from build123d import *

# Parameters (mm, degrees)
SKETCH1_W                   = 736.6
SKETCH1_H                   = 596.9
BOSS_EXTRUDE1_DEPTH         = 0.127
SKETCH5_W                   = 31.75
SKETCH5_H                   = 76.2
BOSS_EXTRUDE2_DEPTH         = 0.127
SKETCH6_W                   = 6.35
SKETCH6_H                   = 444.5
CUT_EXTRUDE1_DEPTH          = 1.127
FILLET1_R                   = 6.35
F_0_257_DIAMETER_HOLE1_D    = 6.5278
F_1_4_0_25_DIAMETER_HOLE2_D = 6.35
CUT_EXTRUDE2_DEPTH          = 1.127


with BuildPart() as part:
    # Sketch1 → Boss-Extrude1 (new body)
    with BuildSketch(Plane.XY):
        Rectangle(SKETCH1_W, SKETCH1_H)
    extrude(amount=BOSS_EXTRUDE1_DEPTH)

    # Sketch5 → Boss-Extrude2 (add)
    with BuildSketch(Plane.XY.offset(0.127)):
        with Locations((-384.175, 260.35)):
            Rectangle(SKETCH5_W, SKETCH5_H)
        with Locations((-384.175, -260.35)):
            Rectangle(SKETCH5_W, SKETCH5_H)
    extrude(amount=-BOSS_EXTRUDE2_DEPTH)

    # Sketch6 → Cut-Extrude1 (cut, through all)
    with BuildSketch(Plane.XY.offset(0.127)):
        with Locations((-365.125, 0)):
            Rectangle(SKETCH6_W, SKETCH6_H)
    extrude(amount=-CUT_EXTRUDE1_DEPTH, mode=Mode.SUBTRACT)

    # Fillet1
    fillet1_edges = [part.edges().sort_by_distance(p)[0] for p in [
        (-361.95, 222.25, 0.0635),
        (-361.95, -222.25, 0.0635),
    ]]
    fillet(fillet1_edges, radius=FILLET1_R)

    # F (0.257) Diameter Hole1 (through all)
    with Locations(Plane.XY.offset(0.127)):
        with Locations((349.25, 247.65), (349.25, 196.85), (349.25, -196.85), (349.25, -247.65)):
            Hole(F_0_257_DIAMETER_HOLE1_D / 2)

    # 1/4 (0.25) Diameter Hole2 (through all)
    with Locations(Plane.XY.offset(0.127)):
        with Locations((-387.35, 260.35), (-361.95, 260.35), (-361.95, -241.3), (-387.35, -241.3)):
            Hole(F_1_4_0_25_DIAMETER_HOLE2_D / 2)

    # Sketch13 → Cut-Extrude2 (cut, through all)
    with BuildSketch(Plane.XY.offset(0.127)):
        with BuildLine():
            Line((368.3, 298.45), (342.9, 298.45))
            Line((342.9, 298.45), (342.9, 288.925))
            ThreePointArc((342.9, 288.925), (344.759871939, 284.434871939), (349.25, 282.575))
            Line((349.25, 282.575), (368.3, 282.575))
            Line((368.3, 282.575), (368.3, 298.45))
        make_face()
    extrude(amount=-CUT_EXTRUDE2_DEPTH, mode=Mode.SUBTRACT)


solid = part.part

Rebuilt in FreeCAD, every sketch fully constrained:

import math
import FreeCAD as App
import Part
import Sketcher
from FreeCAD import Vector
Q = App.Units.Quantity


def edges_at(feature, points):
    """Names of the edges that pass closest to the given points."""
    edges = feature.Shape.Edges
    near = lambda p: min(range(len(edges)), key=lambda i: edges[i].distToShape(Part.Vertex(*p))[0])
    return sorted({f"Edge{near(p) + 1}" for p in points})

doc = App.newDocument("Part")
body = doc.addObject("PartDesign::Body", "Body")

# Sketch on XY plane
sketch1 = doc.addObject("Sketcher::SketchObject", "Sketch")
body.addObject(sketch1)
sketch1.AttachmentSupport = (doc.XY_Plane, [""])
sketch1.MapMode = "FlatFace"
sketch1.addGeometry([
    Part.LineSegment(Vector(-368, 298, 0), Vector(-368, -298, 0)),
    Part.LineSegment(Vector(-368, -298, 0), Vector(368, -298, 0)),
    Part.LineSegment(Vector(368, -298, 0), Vector(368, 298, 0)),
    Part.LineSegment(Vector(368, 298, 0), Vector(-368, 298, 0)),
], False)
sketch1.addConstraint([
    Sketcher.Constraint("Coincident", 0, 2, 1, 1),
    Sketcher.Constraint("Coincident", 1, 2, 2, 1),
    Sketcher.Constraint("Coincident", 2, 2, 3, 1),
    Sketcher.Constraint("Coincident", 3, 2, 0, 1),
    Sketcher.Constraint("Vertical", 0),
    Sketcher.Constraint("Horizontal", 1),
    Sketcher.Constraint("Vertical", 2),
    Sketcher.Constraint("Horizontal", 3),
    Sketcher.Constraint("Symmetric", 0, 2, 2, 2, -1, 1),
    Sketcher.Constraint("DistanceX", 1, 1, 1, 2, Q("29 in")),
    Sketcher.Constraint("DistanceY", 0, 2, 0, 1, Q("23.5 in")),
])
pad1 = doc.addObject("PartDesign::Pad", "Pad")
body.addObject(pad1)
pad1.Profile = sketch1
pad1.Length = Q("0.005 in")

# Sketch on XY plane
sketch2 = doc.addObject("Sketcher::SketchObject", "Sketch001")
body.addObject(sketch2)
sketch2.AttachmentSupport = (doc.XY_Plane, [""])
sketch2.MapMode = "FlatFace"
sketch2.AttachmentOffset = App.Placement(Vector(0, 0, 0.005 * 25.4), App.Rotation())
sketch2.addGeometry([
    Part.LineSegment(Vector(-400, 298, 0), Vector(-400, 222, 0)),  # 0
    Part.LineSegment(Vector(-400, 222, 0), Vector(-368, 222, 0)),  # 1
    Part.LineSegment(Vector(-368, 222, 0), Vector(-368, 298, 0)),  # 2
    Part.LineSegment(Vector(-368, 298, 0), Vector(-400, 298, 0)),  # 3
    Part.LineSegment(Vector(-400, -222, 0), Vector(-400, -298, 0)),  # 4
    Part.LineSegment(Vector(-400, -298, 0), Vector(-368, -298, 0)),  # 5
    Part.LineSegment(Vector(-368, -298, 0), Vector(-368, -222, 0)),  # 6
    Part.LineSegment(Vector(-368, -222, 0), Vector(-400, -222, 0)),  # 7
], False)
sketch2.addConstraint([
    Sketcher.Constraint("Coincident", 0, 2, 1, 1),
    Sketcher.Constraint("Coincident", 1, 2, 2, 1),
    Sketcher.Constraint("Coincident", 2, 2, 3, 1),
    Sketcher.Constraint("Coincident", 3, 2, 0, 1),
    Sketcher.Constraint("Coincident", 4, 2, 5, 1),
    Sketcher.Constraint("Coincident", 5, 2, 6, 1),
    Sketcher.Constraint("Coincident", 6, 2, 7, 1),
    Sketcher.Constraint("Coincident", 7, 2, 4, 1),
    Sketcher.Constraint("Vertical", 0),
    Sketcher.Constraint("Horizontal", 1),
    Sketcher.Constraint("Vertical", 2),
    Sketcher.Constraint("Horizontal", 3),
    Sketcher.Constraint("Vertical", 4),
    Sketcher.Constraint("Horizontal", 5),
    Sketcher.Constraint("Vertical", 6),
    Sketcher.Constraint("Horizontal", 7),
    Sketcher.Constraint("Symmetric", 3, 2, 4, 2, -1),
    Sketcher.Constraint("Symmetric", 1, 2, 6, 2, -1),
    Sketcher.Constraint("DistanceY", 0, 2, 0, 1, Q("3 in")),
    Sketcher.Constraint("DistanceX", 1, 1, 1, 2, Q("1.25 in")),
    Sketcher.Constraint("DistanceX", 1, 2, -1, 1, Q("14.5 in")),
    Sketcher.Constraint("DistanceY", 4, 2, 0, 2, Q("20.5 in")),
])
pad2 = doc.addObject("PartDesign::Pad", "Pad001")
body.addObject(pad2)
pad2.Profile = sketch2
pad2.Length = Q("0.005 in")
pad2.Reversed = True

# Sketch on XY plane
sketch3 = doc.addObject("Sketcher::SketchObject", "Sketch002")
body.addObject(sketch3)
sketch3.AttachmentSupport = (doc.XY_Plane, [""])
sketch3.MapMode = "FlatFace"
sketch3.AttachmentOffset = App.Placement(Vector(0, 0, 0.005 * 25.4), App.Rotation())
sketch3.addGeometry([
    Part.LineSegment(Vector(-368, 222, 0), Vector(-368, -222, 0)),
    Part.LineSegment(Vector(-368, -222, 0), Vector(-362, -222, 0)),
    Part.LineSegment(Vector(-362, -222, 0), Vector(-362, 222, 0)),
    Part.LineSegment(Vector(-362, 222, 0), Vector(-368, 222, 0)),
], False)
sketch3.addConstraint([
    Sketcher.Constraint("Coincident", 0, 2, 1, 1),
    Sketcher.Constraint("Coincident", 1, 2, 2, 1),
    Sketcher.Constraint("Coincident", 2, 2, 3, 1),
    Sketcher.Constraint("Coincident", 3, 2, 0, 1),
    Sketcher.Constraint("Vertical", 0),
    Sketcher.Constraint("Horizontal", 1),
    Sketcher.Constraint("Vertical", 2),
    Sketcher.Constraint("Horizontal", 3),
    Sketcher.Constraint("DistanceY", 0, 2, 0, 1, Q("17.5 in")),
    Sketcher.Constraint("DistanceX", 1, 1, 1, 2, Q("0.25 in")),
    Sketcher.Constraint("DistanceX", 0, 2, -1, 1, Q("14.5 in")),
    Sketcher.Constraint("DistanceY", 0, 2, -1, 1, Q("8.75 in")),
])
pocket1 = doc.addObject("PartDesign::Pocket", "Pocket")
body.addObject(pocket1)
pocket1.Profile = sketch3
pocket1.Type = "ThroughAll"
doc.recompute()

fillet = doc.addObject("PartDesign::Fillet", "Fillet")
body.addObject(fillet)
fillet.Base = (pocket1, edges_at(pocket1, [(-361.95, 222.25, 0.064), (-361.95, -222.25, 0.064)]))
fillet.Radius = Q("0.25 in")

# Sketch on XY plane
sketch4 = doc.addObject("Sketcher::SketchObject", "Sketch003")
body.addObject(sketch4)
sketch4.AttachmentSupport = (doc.XY_Plane, [""])
sketch4.MapMode = "FlatFace"
sketch4.AttachmentOffset = App.Placement(Vector(0, 0, 0.005 * 25.4), App.Rotation())
sketch4.addGeometry([
    Part.Circle(Vector(349.2, 247.7, 0), Vector(0, 0, 1), 3.3),
    Part.Circle(Vector(349.2, 196.8, 0), Vector(0, 0, 1), 3.3),
    Part.Circle(Vector(349.2, -196.8, 0), Vector(0, 0, 1), 3.3),
    Part.Circle(Vector(349.2, -247.7, 0), Vector(0, 0, 1), 3.3),
], False)
sketch4.addConstraint([
    Sketcher.Constraint("Equal", 0, 1),
    Sketcher.Constraint("Equal", 1, 2),
    Sketcher.Constraint("Equal", 2, 3),
    Sketcher.Constraint("Symmetric", 1, 3, 2, 3, -1),
    Sketcher.Constraint("Symmetric", 0, 3, 3, 3, -1),
    Sketcher.Constraint("Vertical", 0, 3, 1, 3),
    Sketcher.Constraint("Diameter", 0, Q("0.257 in")),
    Sketcher.Constraint("DistanceY", 1, 3, 0, 3, Q("2 in")),
    Sketcher.Constraint("DistanceY", 2, 3, 1, 3, Q("15.5 in")),
    Sketcher.Constraint("DistanceX", -1, 1, 0, 3, Q("13.75 in")),
])
doc.recompute()
hole = doc.addObject("PartDesign::Hole", "Hole")
body.addObject(hole)
hole.Profile = sketch4
hole.ThreadType = "None"
hole.Diameter = Q("0.257 in")
hole.DepthType = "ThroughAll"

# Sketch on XY plane
sketch5 = doc.addObject("Sketcher::SketchObject", "Sketch004")
body.addObject(sketch5)
sketch5.AttachmentSupport = (doc.XY_Plane, [""])
sketch5.MapMode = "FlatFace"
sketch5.AttachmentOffset = App.Placement(Vector(0, 0, 0.005 * 25.4), App.Rotation())
sketch5.addGeometry([
    Part.Circle(Vector(-387.4, 260.4, 0), Vector(0, 0, 1), 3.2),
    Part.Circle(Vector(-361.9, 260.4, 0), Vector(0, 0, 1), 3.2),
    Part.Circle(Vector(-361.9, -241.3, 0), Vector(0, 0, 1), 3.2),
    Part.Circle(Vector(-387.4, -241.3, 0), Vector(0, 0, 1), 3.2),
], False)
sketch5.addConstraint([
    Sketcher.Constraint("Equal", 0, 1),
    Sketcher.Constraint("Equal", 1, 2),
    Sketcher.Constraint("Equal", 2, 3),
    Sketcher.Constraint("Horizontal", 0, 3, 1, 3),
    Sketcher.Constraint("Horizontal", 2, 3, 3, 3),
    Sketcher.Constraint("Vertical", 1, 3, 2, 3),
    Sketcher.Constraint("Vertical", 0, 3, 3, 3),
    Sketcher.Constraint("Diameter", 0, Q("0.25 in")),
    Sketcher.Constraint("DistanceX", 0, 3, 1, 3, Q("1 in")),
    Sketcher.Constraint("DistanceY", 2, 3, -1, 1, Q("9.5 in")),
    Sketcher.Constraint("DistanceX", 0, 3, -1, 1, Q("15.25 in")),
    Sketcher.Constraint("DistanceY", -1, 1, 0, 3, Q("10.25 in")),
])
doc.recompute()
hole2 = doc.addObject("PartDesign::Hole", "Hole001")
body.addObject(hole2)
hole2.Profile = sketch5
hole2.ThreadType = "None"
hole2.Diameter = Q("0.25 in")
hole2.DepthType = "ThroughAll"

# Sketch on XY plane
sketch6 = doc.addObject("Sketcher::SketchObject", "Sketch005")
body.addObject(sketch6)
sketch6.AttachmentSupport = (doc.XY_Plane, [""])
sketch6.MapMode = "FlatFace"
sketch6.AttachmentOffset = App.Placement(Vector(0, 0, 0.005 * 25.4), App.Rotation())
sketch6.addGeometry([
    Part.LineSegment(Vector(368, 298, 0), Vector(343, 298, 0)),  # 0
    Part.LineSegment(Vector(343, 298, 0), Vector(343, 289, 0)),  # 1
    Part.ArcOfCircle(Part.Circle(Vector(349, 289, 0), Vector(0, 0, 1), 6), math.radians(180), math.radians(270)),  # 2
    Part.LineSegment(Vector(349, 283, 0), Vector(368, 283, 0)),  # 3
    Part.LineSegment(Vector(368, 283, 0), Vector(368, 298, 0)),  # 4
], False)
sketch6.addConstraint([
    Sketcher.Constraint("Coincident", 0, 2, 1, 1),
    Sketcher.Constraint("Tangent", 1, 2, 2, 1),
    Sketcher.Constraint("Tangent", 2, 2, 3, 1),
    Sketcher.Constraint("Coincident", 3, 2, 4, 1),
    Sketcher.Constraint("Coincident", 4, 2, 0, 1),
    Sketcher.Constraint("Horizontal", 0),
    Sketcher.Constraint("Vertical", 1),
    Sketcher.Constraint("Horizontal", 3),
    Sketcher.Constraint("Vertical", 4),
    Sketcher.Constraint("DistanceX", 0, 2, 0, 1, Q("1 in")),
    Sketcher.Constraint("Radius", 2, Q("0.25 in")),
    Sketcher.Constraint("DistanceX", -1, 1, 0, 2, Q("13.5 in")),
    Sketcher.Constraint("DistanceY", 1, 2, 1, 1, Q("0.375 in")),
    Sketcher.Constraint("DistanceY", -1, 1, 0, 2, Q("11.75 in")),
])
pocket2 = doc.addObject("PartDesign::Pocket", "Pocket001")
body.addObject(pocket2)
pocket2.Profile = sketch6
pocket2.Type = "ThroughAll"

doc.recompute()
